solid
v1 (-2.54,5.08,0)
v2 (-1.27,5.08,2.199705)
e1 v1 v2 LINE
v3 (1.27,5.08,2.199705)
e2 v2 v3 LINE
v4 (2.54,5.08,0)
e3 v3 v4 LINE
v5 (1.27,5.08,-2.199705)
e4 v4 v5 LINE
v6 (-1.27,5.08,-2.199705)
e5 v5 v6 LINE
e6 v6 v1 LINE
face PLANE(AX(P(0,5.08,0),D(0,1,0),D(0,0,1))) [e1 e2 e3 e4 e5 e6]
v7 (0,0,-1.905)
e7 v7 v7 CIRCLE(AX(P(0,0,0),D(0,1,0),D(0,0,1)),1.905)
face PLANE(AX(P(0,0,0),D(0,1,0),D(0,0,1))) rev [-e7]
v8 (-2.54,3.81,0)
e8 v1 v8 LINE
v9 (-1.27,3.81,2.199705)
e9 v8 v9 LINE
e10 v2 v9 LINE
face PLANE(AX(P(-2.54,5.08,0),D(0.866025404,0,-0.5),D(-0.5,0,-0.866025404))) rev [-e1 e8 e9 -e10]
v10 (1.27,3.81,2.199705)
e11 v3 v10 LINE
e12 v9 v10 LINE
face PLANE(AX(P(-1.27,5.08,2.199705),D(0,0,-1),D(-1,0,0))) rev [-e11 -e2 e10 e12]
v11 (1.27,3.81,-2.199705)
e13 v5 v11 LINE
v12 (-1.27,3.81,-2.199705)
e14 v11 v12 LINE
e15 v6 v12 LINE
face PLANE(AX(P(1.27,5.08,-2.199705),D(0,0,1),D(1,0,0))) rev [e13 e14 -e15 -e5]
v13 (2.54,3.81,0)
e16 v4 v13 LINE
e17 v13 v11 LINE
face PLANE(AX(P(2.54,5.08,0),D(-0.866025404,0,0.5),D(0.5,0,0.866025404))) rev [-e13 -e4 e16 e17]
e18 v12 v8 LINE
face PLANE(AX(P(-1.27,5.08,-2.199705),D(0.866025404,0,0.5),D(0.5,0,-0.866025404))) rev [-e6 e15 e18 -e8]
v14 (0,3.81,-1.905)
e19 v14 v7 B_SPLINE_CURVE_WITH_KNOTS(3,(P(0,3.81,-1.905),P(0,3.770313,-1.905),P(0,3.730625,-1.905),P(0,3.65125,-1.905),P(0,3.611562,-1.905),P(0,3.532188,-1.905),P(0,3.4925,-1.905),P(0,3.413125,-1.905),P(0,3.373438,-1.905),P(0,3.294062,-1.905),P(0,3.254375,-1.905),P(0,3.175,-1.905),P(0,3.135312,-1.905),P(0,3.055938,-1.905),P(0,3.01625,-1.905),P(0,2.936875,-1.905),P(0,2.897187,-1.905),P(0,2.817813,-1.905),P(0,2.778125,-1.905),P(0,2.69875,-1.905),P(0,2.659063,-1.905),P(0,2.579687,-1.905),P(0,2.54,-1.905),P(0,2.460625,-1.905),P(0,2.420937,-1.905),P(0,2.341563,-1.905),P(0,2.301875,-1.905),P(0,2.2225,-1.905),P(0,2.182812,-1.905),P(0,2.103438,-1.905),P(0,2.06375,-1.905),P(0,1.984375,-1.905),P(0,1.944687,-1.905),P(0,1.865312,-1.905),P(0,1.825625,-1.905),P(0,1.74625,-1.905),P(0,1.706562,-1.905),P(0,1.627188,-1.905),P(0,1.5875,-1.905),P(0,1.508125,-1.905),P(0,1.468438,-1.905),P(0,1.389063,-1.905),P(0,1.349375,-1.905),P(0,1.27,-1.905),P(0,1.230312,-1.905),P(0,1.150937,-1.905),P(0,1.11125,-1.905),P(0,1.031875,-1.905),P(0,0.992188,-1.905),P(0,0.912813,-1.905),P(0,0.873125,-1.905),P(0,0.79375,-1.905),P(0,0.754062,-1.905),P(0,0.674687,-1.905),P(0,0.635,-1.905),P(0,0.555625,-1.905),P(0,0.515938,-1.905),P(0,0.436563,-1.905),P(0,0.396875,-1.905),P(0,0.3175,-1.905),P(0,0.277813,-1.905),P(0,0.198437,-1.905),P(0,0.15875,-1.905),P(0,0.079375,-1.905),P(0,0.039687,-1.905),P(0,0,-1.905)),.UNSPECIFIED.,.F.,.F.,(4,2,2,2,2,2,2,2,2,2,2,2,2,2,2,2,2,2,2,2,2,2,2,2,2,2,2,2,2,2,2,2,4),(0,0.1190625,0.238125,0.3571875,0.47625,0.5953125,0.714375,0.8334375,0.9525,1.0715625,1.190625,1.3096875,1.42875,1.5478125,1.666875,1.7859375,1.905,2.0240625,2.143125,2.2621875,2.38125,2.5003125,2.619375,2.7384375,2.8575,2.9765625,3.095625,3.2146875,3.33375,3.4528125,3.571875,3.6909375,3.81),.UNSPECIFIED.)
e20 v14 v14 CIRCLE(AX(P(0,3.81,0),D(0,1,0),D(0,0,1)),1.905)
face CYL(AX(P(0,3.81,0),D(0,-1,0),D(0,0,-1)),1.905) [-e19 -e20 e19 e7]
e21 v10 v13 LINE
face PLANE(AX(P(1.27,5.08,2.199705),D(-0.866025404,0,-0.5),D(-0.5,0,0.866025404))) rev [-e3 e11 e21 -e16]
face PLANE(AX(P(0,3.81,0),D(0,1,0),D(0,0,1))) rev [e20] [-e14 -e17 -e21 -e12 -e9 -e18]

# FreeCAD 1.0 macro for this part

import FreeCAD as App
import Part
import Sketcher

V = App.Vector
Q = App.Units.Quantity


def add_polygon(sketch, points):
    """Adds a closed chain of lines whose ends are joined by coincident constraints."""
    first, n = sketch.GeometryCount, len(points)
    for a, b in zip(points, points[1:] + points[:1]):
        sketch.addGeometry(Part.LineSegment(App.Vector(*a, 0), App.Vector(*b, 0)), False)
    for i in range(n):
        sketch.addConstraint(Sketcher.Constraint("Coincident", first + i, 2, first + (i + 1) % n, 1))

doc = App.newDocument("Part")
body = doc.addObject("PartDesign::Body", "Body")

# Sketch on XZ plane
sketch1 = doc.addObject("Sketcher::SketchObject", "Sketch")
body.addObject(sketch1)
sketch1.AttachmentSupport = (doc.XZ_Plane, [""])
sketch1.MapMode = "FlatFace"
sketch1.addGeometry(Part.Circle(V(0, 0, 0), V(0, 0, 1), 1.905), False)
sketch1.addConstraint([
    Sketcher.Constraint("Coincident", 0, 3, -1, 1),
    Sketcher.Constraint("Diameter", 0, Q("0.15 in")),
])
pad1 = doc.addObject("PartDesign::Pad", "Pad")
body.addObject(pad1)
pad1.Profile = sketch1
pad1.Length = Q("0.15 in")
pad1.Reversed = True

# Sketch on XZ plane
sketch2 = doc.addObject("Sketcher::SketchObject", "Sketch001")
body.addObject(sketch2)
sketch2.AttachmentSupport = (doc.XZ_Plane, [""])
sketch2.MapMode = "FlatFace"
sketch2.AttachmentOffset = App.Placement(V(0, 0, -0.15 * 25.4), App.Rotation())
add_polygon(sketch2, [(1.27, -2.199705), (-1.27, -2.199705), (-2.54, 0), (-1.27, 2.199705), (1.27, 2.199705), (2.54, 0)])  # lines 0-5
sketch2.addConstraint([
    Sketcher.Constraint("Horizontal", 0),
    Sketcher.Constraint("Horizontal", 3),
    Sketcher.Constraint("Symmetric", 0, 2, 3, 2, -1, 1),
    Sketcher.Constraint("Symmetric", 1, 2, 4, 2, -1, 1),
    Sketcher.Constraint("PointOnObject", 1, 2, -1),
    Sketcher.Constraint("Parallel", 2, 5),
    Sketcher.Constraint("Vertical", 0, 2, 2, 2),
    Sketcher.Constraint("DistanceX", 0, 2, 0, 1, Q("0.1 in")),
    Sketcher.Constraint("Angle", 1, Q("120 deg")),
    Sketcher.Constraint("Distance", 1, Q("0.1 in")),
])
pad2 = doc.addObject("PartDesign::Pad", "Pad001")
body.addObject(pad2)
pad2.Profile = sketch2
pad2.Length = Q("0.05 in")
pad2.Reversed = True

doc.recompute()
